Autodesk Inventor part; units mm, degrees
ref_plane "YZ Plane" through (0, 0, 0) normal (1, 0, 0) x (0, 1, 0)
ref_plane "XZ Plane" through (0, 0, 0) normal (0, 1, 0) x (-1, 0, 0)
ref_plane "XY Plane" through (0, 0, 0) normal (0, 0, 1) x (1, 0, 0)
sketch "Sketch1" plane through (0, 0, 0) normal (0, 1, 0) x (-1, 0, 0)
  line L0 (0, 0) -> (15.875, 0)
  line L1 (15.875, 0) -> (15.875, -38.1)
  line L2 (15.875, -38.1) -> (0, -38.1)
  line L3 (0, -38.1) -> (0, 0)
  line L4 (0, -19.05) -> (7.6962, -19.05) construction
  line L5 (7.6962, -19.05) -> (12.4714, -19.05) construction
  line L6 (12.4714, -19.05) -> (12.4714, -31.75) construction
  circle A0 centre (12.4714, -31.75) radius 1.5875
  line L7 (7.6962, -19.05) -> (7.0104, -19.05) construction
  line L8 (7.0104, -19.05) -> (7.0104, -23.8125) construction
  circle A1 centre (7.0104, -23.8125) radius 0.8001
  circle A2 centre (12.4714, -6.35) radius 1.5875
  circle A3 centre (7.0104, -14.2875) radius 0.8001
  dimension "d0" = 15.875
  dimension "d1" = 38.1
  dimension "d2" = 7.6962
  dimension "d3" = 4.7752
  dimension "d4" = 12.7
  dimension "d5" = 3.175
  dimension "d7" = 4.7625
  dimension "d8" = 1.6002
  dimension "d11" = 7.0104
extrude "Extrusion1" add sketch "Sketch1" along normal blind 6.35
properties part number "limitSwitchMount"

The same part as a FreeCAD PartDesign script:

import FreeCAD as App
import Part
import Sketcher
from FreeCAD import Vector
Q = App.Units.Quantity

doc = App.newDocument("Part")
body = doc.addObject("PartDesign::Body", "Body")

# Sketch on XZ plane
sketch1 = body.newObject("Sketcher::SketchObject", "Sketch")
sketch1.AttachmentSupport = (doc.getObject("XZ_Plane"), [""])
sketch1.MapMode = "FlatFace"
sketch1.addGeometry([
    Part.LineSegment(Vector(-15.9, 0, 0), Vector(0, 0, 0)),  # 0
    Part.LineSegment(Vector(0, 0, 0), Vector(0, -38.1, 0)),  # 1
    Part.LineSegment(Vector(0, -38.1, 0), Vector(-15.9, -38.1, 0)),  # 2
    Part.LineSegment(Vector(-15.9, -38.1, 0), Vector(-15.9, 0, 0)),  # 3
    Part.Circle(Vector(-7, -23.8, 0), Vector(0, 0, 1), 0.8),  # 4
    Part.Circle(Vector(-12.5, -31.8, 0), Vector(0, 0, 1), 1.6),  # 5
    Part.Circle(Vector(-7, -14.3, 0), Vector(0, 0, 1), 0.8),  # 6
    Part.Circle(Vector(-12.5, -6.3, 0), Vector(0, 0, 1), 1.6),  # 7
], False)
sketch1.addConstraint([
    Sketcher.Constraint("Coincident", 0, 2, 1, 1),
    Sketcher.Constraint("Coincident", 1, 2, 2, 1),
    Sketcher.Constraint("Coincident", 2, 2, 3, 1),
    Sketcher.Constraint("Coincident", 3, 2, 0, 1),
    Sketcher.Constraint("Horizontal", 0),
    Sketcher.Constraint("Vertical", 1),
    Sketcher.Constraint("Horizontal", 2),
    Sketcher.Constraint("Vertical", 3),
    Sketcher.Constraint("Coincident", 0, 2, -1, 1),
    Sketcher.Constraint("Equal", 4, 6),
    Sketcher.Constraint("Equal", 5, 7),
    Sketcher.Constraint("Vertical", 4, 3, 6, 3),
    Sketcher.Constraint("Vertical", 5, 3, 7, 3),
    Sketcher.Constraint("Diameter", 4, Q("0.063 in")),
    Sketcher.Constraint("Diameter", 5, Q("0.125 in")),
    Sketcher.Constraint("DistanceY", 1, 2, 1, 1, Q("1.5 in")),
    Sketcher.Constraint("DistanceX", 0, 1, 0, 2, Q("0.625 in")),
    Sketcher.Constraint("DistanceX", 4, 3, -1, 1, Q("0.276 in")),
    Sketcher.Constraint("DistanceY", 5, 3, 7, 3, Q("1 in")),
    Sketcher.Constraint("DistanceY", 5, 3, -1, 1, Q("1.25 in")),
    Sketcher.Constraint("DistanceY", 4, 3, -1, 1, Q("0.9375 in")),
    Sketcher.Constraint("DistanceX", 5, 3, -1, 1, Q("0.491 in")),
    Sketcher.Constraint("DistanceY", 6, 3, -1, 1, Q("0.5625 in")),
])
pad1 = body.newObject("PartDesign::Pad", "Pad")
pad1.Profile = sketch1
pad1.Length = Q("0.25 in")
pad1.Reversed = True

doc.recompute()
